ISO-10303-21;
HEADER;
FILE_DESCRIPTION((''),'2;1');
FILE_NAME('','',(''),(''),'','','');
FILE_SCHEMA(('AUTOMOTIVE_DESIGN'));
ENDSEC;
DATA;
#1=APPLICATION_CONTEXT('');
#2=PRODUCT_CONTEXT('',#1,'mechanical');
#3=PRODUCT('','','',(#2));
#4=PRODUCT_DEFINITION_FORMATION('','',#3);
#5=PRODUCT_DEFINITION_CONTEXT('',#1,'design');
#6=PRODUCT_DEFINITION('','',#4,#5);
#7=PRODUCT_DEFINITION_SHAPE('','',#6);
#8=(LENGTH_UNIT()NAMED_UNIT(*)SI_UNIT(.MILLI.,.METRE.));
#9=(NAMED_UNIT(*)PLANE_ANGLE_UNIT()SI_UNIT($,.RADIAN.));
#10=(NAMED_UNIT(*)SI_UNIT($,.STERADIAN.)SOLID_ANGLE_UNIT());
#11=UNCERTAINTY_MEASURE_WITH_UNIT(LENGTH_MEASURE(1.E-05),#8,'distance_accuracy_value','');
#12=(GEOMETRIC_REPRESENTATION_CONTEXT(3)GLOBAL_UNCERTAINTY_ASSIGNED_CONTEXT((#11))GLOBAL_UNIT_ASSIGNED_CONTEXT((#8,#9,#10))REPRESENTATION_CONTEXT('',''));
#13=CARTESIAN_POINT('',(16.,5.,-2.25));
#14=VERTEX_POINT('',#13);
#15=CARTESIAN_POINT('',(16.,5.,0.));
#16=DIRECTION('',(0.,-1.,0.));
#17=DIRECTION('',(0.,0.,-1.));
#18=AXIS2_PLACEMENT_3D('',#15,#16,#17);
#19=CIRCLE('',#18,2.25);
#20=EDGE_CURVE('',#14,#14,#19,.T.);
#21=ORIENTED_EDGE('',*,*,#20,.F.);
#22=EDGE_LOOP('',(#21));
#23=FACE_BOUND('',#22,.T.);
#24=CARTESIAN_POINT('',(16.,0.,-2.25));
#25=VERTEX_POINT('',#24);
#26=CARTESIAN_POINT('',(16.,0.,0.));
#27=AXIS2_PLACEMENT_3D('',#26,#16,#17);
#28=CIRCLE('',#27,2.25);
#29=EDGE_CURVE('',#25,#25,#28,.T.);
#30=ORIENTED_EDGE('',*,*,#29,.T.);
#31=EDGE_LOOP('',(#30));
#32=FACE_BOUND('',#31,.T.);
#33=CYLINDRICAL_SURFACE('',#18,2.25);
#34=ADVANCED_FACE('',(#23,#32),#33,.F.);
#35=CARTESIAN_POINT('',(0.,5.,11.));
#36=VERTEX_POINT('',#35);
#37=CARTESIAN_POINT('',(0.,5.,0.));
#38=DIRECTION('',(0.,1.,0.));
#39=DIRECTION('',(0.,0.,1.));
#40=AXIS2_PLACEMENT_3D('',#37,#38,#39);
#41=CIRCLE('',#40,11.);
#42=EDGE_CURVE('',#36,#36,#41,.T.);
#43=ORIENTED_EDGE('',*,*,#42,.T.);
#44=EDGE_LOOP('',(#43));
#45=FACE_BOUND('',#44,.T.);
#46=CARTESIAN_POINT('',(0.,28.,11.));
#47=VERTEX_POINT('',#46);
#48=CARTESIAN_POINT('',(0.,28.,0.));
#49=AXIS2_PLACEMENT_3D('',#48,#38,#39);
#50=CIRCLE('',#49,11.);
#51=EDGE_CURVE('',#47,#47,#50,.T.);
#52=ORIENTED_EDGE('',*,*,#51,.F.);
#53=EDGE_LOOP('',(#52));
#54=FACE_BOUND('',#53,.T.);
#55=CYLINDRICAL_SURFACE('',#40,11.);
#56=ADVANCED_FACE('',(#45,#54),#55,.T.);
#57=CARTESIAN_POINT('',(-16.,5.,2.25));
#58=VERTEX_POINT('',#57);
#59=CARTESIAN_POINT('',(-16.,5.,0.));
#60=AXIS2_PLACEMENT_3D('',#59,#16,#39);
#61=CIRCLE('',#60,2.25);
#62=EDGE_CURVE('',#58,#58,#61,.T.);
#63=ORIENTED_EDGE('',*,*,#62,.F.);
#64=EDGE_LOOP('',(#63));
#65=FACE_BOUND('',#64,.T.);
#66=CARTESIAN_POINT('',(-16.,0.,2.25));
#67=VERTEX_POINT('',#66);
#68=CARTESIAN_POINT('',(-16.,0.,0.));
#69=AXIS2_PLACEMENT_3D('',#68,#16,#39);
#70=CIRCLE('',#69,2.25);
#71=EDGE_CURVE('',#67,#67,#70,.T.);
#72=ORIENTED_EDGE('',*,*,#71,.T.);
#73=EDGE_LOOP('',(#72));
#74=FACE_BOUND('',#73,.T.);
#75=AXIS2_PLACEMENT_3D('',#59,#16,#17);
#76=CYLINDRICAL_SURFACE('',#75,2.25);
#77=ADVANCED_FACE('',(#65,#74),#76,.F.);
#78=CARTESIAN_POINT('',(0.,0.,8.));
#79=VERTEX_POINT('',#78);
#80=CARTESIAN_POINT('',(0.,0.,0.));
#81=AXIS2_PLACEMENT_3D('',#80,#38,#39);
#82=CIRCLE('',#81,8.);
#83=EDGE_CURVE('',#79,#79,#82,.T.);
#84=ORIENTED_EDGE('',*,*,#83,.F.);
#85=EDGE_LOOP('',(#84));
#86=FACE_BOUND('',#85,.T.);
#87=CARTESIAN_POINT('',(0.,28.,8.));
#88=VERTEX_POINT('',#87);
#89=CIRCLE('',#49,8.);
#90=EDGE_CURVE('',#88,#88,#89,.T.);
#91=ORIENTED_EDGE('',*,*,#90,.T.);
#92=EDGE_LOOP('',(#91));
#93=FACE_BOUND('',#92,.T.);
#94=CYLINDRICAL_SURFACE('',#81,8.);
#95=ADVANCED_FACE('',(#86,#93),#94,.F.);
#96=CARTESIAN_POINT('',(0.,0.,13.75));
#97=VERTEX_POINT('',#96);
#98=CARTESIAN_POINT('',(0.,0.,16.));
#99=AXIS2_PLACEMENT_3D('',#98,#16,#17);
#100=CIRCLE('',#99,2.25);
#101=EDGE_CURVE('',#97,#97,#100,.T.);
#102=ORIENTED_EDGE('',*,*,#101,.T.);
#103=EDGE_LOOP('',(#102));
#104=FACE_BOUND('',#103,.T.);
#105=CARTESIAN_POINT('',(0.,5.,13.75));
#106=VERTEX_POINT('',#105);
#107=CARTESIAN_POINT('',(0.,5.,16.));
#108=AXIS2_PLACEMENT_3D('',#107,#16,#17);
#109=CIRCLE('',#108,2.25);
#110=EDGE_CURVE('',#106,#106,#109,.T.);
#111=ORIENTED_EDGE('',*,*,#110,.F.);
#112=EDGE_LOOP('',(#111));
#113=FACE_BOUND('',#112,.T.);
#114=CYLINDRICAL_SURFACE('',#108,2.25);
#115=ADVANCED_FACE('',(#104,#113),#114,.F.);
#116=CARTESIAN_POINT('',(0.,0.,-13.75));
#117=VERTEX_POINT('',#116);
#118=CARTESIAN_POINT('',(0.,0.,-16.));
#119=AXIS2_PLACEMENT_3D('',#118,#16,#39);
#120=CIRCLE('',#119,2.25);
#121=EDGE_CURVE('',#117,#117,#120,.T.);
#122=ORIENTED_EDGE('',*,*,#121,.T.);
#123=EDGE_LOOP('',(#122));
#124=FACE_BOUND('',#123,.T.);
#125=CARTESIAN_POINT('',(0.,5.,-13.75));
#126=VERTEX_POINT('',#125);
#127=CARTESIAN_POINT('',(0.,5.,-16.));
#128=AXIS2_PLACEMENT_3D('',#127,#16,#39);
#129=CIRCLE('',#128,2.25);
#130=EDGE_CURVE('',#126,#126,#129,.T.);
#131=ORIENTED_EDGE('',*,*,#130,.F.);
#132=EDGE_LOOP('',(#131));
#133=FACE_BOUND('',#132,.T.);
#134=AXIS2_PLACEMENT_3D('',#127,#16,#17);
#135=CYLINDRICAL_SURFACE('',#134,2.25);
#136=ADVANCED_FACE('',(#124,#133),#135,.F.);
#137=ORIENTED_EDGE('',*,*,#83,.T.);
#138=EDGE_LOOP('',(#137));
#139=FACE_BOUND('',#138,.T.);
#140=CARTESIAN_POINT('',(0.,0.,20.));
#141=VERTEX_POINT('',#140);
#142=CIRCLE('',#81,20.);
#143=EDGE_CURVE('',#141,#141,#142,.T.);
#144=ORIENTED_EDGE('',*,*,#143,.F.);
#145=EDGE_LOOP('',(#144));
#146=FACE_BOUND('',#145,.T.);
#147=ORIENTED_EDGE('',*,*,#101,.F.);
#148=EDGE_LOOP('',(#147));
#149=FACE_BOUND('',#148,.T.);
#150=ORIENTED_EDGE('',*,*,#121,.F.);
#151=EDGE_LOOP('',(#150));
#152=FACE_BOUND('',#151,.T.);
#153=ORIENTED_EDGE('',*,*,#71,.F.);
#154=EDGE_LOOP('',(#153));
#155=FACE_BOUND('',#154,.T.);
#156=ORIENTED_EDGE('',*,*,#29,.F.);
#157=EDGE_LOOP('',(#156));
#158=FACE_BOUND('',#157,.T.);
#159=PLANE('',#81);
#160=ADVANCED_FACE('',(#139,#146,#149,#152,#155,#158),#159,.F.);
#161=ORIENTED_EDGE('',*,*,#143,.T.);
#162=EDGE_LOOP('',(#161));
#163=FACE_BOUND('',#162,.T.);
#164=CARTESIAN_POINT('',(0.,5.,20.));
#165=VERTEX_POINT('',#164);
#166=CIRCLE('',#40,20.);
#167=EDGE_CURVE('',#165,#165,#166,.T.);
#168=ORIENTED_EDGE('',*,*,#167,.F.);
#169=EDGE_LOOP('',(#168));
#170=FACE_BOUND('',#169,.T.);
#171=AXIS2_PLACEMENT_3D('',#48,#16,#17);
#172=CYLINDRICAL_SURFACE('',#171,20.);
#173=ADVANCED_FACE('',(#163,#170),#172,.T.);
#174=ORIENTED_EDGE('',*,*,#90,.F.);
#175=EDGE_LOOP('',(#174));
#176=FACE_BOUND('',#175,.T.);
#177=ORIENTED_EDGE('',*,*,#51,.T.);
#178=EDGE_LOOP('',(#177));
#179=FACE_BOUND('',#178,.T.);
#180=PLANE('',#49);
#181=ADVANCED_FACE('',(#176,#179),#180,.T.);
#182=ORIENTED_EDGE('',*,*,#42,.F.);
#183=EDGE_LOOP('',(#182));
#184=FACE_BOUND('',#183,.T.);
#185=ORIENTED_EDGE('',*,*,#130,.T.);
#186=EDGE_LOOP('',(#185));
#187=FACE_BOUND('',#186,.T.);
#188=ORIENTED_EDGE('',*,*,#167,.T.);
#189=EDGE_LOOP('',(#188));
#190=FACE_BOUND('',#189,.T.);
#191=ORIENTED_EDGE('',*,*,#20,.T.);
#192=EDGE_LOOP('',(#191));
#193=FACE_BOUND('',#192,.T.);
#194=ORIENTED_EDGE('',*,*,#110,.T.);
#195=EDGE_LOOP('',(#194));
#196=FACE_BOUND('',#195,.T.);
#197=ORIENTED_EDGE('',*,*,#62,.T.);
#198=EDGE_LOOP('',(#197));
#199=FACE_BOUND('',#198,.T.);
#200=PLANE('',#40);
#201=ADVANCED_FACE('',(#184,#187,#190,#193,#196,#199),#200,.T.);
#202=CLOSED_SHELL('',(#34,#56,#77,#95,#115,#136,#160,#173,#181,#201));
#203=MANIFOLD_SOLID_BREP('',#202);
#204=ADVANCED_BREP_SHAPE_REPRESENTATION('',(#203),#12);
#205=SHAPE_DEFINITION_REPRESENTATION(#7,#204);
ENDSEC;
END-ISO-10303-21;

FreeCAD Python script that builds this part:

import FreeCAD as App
import Part
import Sketcher

V = App.Vector


def add_polygon(sketch, points):
    """Adds a closed chain of lines whose ends are joined by coincident constraints."""
    first, n = sketch.GeometryCount, len(points)
    for a, b in zip(points, points[1:] + points[:1]):
        sketch.addGeometry(Part.LineSegment(App.Vector(*a, 0), App.Vector(*b, 0)), False)
    for i in range(n):
        sketch.addConstraint(Sketcher.Constraint("Coincident", first + i, 2, first + (i + 1) % n, 1))

doc = App.newDocument("Part")
body = doc.addObject("PartDesign::Body", "Body")

# Sketch on XZ plane
sketch1 = body.newObject("Sketcher::SketchObject", "Sketch")
sketch1.AttachmentSupport = (doc.getObject("XZ_Plane"), [""])
sketch1.MapMode = "FlatFace"
sketch1.addGeometry(Part.Circle(V(0, 0, 0), V(0, 0, 1), 20), False)
sketch1.addConstraint([
    Sketcher.Constraint("Coincident", 0, 3, -1, 1),
    Sketcher.Constraint("Diameter", 0, 40.0),
])
pad1 = body.newObject("PartDesign::Pad", "Pad")
pad1.Profile = sketch1
pad1.Length = 28
pad1.Reversed = True

# Sketch on XZ plane
sketch2 = body.newObject("Sketcher::SketchObject", "Sketch001")
sketch2.AttachmentSupport = (doc.getObject("XZ_Plane"), [""])
sketch2.MapMode = "FlatFace"
sketch2.AttachmentOffset = App.Placement(V(0, 0, -28), App.Rotation())
add_polygon(sketch2, [(-27, -27), (-27, 27), (27, 27), (27, -27)])  # lines 0-3
sketch2.addGeometry(Part.Circle(V(0, 0, 0), V(0, 0, 1), 11), False)  # 4
sketch2.addConstraint([
    Sketcher.Constraint("Vertical", 0),
    Sketcher.Constraint("Horizontal", 1),
    Sketcher.Constraint("Vertical", 2),
    Sketcher.Constraint("Horizontal", 3),
    Sketcher.Constraint("Coincident", 4, 3, -1, 1),
    Sketcher.Constraint("Symmetric", 0, 2, 2, 2, -1, 1),
    Sketcher.Constraint("Equal", 3, 0),
    Sketcher.Constraint("Diameter", 4, 22.0),
    Sketcher.Constraint("DistanceX", 1, 1, 1, 2, 54.624),
])
pocket1 = body.newObject("PartDesign::Pocket", "Pocket")
pocket1.Profile = sketch2
pocket1.Length = 23
pocket1.Reversed = True

# Sketch on XZ plane
sketch3 = body.newObject("Sketcher::SketchObject", "Sketch002")
sketch3.AttachmentSupport = (doc.getObject("XZ_Plane"), [""])
sketch3.MapMode = "FlatFace"
sketch3.AttachmentOffset = App.Placement(V(0, 0, -28), App.Rotation())
sketch3.addGeometry(Part.Circle(V(0, 0, 0), V(0, 0, 1), 8), False)
sketch3.addConstraint([
    Sketcher.Constraint("Coincident", 0, 3, -1, 1),
    Sketcher.Constraint("Diameter", 0, 16.0),
])
pocket2 = body.newObject("PartDesign::Pocket", "Pocket001")
pocket2.Profile = sketch3
pocket2.Length = 28
pocket2.Reversed = True

# Sketch on XZ plane
sketch4 = body.newObject("Sketcher::SketchObject", "Sketch003")
sketch4.AttachmentSupport = (doc.getObject("XZ_Plane"), [""])
sketch4.MapMode = "FlatFace"
sketch4.addGeometry([
    Part.Circle(V(0, 16, 0), V(0, 0, 1), 2.2),
    Part.Circle(V(16, 0, 0), V(0, 0, 1), 2.2),
    Part.Circle(V(0, -16, 0), V(0, 0, 1), 2.2),
    Part.Circle(V(-16, 0, 0), V(0, 0, 1), 2.2),
], False)
sketch4.addConstraint([
    Sketcher.Constraint("Equal", 0, 1),
    Sketcher.Constraint("Equal", 1, 2),
    Sketcher.Constraint("Equal", 2, 3),
    Sketcher.Constraint("Symmetric", 0, 3, 2, 3, -1, 1),
    Sketcher.Constraint("Symmetric", 1, 3, 3, 3, -1, 1),
    Sketcher.Constraint("PointOnObject", 0, 3, -2),
    Sketcher.Constraint("PointOnObject", 1, 3, -1),
    Sketcher.Constraint("Diameter", 0, 4.5),
    Sketcher.Constraint("DistanceY", -1, 1, 0, 3, 16.0),
    Sketcher.Constraint("DistanceX", -1, 1, 1, 3, 16.0),
])
pocket3 = body.newObject("PartDesign::Pocket", "Pocket002")
pocket3.Profile = sketch4
pocket3.Length = 5

doc.recompute()
